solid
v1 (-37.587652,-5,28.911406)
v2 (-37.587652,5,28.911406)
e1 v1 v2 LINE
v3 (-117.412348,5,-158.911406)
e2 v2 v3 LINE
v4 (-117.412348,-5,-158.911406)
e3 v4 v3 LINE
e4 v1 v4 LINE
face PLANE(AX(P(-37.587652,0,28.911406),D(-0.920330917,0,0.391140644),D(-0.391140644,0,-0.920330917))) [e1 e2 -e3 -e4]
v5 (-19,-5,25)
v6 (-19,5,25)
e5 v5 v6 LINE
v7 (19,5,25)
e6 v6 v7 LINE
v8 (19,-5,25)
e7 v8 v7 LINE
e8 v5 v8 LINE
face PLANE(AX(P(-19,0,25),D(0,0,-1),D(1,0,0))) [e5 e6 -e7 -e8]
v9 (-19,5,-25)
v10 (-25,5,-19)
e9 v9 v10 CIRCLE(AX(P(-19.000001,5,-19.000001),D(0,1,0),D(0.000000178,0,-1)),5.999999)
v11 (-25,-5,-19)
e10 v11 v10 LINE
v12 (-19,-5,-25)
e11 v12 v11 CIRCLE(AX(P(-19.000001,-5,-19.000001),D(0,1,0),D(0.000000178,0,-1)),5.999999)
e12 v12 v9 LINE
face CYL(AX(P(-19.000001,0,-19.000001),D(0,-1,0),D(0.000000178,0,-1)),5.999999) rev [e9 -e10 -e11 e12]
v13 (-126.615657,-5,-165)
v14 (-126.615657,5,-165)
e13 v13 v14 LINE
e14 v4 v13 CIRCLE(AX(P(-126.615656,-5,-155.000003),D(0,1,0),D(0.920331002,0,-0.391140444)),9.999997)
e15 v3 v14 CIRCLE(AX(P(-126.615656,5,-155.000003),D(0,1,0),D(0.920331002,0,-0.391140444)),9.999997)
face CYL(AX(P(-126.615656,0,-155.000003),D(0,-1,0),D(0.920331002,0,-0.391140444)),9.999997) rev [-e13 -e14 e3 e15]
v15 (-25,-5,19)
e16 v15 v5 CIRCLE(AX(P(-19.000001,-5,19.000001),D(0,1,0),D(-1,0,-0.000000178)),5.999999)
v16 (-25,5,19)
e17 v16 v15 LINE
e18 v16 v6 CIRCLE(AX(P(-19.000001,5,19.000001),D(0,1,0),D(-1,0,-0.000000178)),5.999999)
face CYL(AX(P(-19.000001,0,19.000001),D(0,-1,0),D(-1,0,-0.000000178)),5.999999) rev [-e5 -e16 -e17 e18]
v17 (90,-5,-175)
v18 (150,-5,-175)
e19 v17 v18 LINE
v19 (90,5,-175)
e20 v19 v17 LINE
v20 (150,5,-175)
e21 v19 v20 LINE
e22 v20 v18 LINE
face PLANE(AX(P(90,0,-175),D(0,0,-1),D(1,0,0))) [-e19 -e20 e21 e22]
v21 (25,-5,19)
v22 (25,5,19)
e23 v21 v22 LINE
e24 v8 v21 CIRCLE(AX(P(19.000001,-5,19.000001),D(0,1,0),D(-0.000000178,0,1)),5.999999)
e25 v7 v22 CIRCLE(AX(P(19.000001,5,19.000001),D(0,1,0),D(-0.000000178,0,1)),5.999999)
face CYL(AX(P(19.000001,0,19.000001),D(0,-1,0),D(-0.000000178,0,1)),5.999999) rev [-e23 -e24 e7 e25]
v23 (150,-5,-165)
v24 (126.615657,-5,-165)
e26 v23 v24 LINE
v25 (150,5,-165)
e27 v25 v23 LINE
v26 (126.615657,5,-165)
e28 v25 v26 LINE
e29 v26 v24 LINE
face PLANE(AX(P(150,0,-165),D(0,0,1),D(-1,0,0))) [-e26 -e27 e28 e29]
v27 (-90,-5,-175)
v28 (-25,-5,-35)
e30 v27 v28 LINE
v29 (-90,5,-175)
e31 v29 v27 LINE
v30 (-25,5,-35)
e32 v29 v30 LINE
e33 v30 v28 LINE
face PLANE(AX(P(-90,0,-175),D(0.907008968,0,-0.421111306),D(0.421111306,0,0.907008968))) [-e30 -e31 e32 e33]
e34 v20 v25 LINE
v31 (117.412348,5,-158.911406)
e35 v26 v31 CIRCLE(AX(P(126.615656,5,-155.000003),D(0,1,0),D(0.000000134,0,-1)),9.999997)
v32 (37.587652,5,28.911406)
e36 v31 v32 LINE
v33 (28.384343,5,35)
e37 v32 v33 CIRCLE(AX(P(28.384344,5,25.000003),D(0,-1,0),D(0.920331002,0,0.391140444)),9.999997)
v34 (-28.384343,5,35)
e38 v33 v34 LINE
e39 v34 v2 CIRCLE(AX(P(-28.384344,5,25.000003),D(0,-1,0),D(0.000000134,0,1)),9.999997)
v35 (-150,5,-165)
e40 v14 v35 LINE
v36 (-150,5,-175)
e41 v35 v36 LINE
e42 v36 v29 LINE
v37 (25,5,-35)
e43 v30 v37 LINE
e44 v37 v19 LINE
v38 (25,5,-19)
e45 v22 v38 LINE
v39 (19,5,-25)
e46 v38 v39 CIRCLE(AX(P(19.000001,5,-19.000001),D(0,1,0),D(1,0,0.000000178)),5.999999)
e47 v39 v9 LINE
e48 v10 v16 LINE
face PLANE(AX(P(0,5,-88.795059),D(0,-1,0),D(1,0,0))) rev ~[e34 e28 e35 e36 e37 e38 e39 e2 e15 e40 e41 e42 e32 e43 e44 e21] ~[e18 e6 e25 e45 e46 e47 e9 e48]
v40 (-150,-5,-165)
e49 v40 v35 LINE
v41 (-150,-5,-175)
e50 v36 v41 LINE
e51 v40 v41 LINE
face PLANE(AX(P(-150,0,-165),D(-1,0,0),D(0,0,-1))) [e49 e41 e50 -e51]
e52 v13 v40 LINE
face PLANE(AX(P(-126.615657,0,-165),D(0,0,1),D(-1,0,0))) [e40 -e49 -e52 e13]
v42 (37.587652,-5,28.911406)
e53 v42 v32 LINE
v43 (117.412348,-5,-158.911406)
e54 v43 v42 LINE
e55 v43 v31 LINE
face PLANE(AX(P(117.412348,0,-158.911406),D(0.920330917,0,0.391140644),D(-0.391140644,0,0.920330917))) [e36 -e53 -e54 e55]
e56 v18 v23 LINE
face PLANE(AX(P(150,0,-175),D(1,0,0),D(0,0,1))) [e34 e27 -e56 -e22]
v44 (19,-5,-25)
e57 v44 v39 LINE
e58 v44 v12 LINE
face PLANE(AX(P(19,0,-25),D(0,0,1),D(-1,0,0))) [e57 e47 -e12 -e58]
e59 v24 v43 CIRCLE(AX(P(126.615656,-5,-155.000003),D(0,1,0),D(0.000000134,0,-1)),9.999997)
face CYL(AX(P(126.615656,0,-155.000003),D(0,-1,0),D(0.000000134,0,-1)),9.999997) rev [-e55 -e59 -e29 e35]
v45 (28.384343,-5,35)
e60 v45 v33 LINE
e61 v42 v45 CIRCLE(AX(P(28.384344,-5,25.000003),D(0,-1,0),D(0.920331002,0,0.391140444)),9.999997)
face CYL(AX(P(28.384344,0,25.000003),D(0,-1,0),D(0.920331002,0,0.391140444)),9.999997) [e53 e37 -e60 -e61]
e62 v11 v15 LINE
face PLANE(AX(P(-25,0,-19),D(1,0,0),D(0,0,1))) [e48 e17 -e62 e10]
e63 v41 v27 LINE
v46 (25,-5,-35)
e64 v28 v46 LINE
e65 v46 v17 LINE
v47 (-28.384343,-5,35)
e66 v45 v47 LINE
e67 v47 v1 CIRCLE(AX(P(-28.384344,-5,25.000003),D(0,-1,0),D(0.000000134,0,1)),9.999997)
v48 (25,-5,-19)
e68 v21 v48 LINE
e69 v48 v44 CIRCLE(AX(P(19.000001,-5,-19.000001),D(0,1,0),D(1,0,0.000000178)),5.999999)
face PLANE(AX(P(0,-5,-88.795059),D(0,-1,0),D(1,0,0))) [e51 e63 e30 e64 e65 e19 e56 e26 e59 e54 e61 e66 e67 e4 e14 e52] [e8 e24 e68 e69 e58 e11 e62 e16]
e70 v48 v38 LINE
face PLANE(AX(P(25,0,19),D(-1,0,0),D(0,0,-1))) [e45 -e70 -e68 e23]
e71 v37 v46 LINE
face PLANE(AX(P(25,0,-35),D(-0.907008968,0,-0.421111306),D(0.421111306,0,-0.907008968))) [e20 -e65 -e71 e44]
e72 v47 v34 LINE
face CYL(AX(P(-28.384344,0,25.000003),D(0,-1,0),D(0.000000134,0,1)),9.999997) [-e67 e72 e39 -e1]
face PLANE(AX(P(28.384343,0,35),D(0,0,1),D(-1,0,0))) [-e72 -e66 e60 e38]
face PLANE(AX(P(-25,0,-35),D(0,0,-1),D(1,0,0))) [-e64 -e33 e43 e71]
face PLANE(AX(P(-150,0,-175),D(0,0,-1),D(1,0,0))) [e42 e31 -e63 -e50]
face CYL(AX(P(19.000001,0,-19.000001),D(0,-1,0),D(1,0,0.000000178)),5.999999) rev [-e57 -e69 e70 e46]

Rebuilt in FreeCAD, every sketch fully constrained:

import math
import FreeCAD as App
import Part
import Sketcher

V = App.Vector

doc = App.newDocument("Part")
body = doc.addObject("PartDesign::Body", "Body")

sketch1 = doc.addObject("Sketcher::SketchObject", "Sketch")
body.addObject(sketch1)
sketch1.AttachmentSupport = (doc.XZ_Plane, [""])
sketch1.MapMode = "FlatFace"
sketch1.addGeometry([
    Part.LineSegment(V(-150, -165, 0), V(-150, -175, 0)),
    Part.LineSegment(V(-150, -175, 0), V(-90, -175, 0)),
    Part.LineSegment(V(-90, -175, 0), V(-25, -35, 0)),
    Part.LineSegment(V(-25, -35, 0), V(25, -35, 0)),
    Part.LineSegment(V(25, -35, 0), V(90, -175, 0)),
    Part.LineSegment(V(90, -175, 0), V(150, -175, 0)),
    Part.LineSegment(V(150, -175, 0), V(150, -165, 0)),
    Part.LineSegment(V(150, -165, 0), V(127, -165, 0)),
    Part.ArcOfCircle(Part.Circle(V(127, -155, 0), V(0, 0, 1), 10), math.radians(-157), math.radians(-90)),
    Part.LineSegment(V(117, -159, 0), V(38, 29, 0)),
    Part.ArcOfCircle(Part.Circle(V(28, 25, 0), V(0, 0, 1), 10), math.radians(23), math.radians(90)),
    Part.LineSegment(V(28, 35, 0), V(-28, 35, 0)),
    Part.ArcOfCircle(Part.Circle(V(-28, 25, 0), V(0, 0, 1), 10), math.radians(90), math.radians(157)),
    Part.LineSegment(V(-38, 29, 0), V(-117, -159, 0)),
    Part.ArcOfCircle(Part.Circle(V(-127, -155, 0), V(0, 0, 1), 10), math.radians(-90), math.radians(-23)),
    Part.LineSegment(V(-127, -165, 0), V(-150, -165, 0)),
    Part.LineSegment(V(-25, -19, 0), V(-25, 19, 0)),
    Part.ArcOfCircle(Part.Circle(V(-19, 19, 0), V(0, 0, 1), 6), math.radians(90), math.radians(180)),
    Part.LineSegment(V(-19, 25, 0), V(19, 25, 0)),
    Part.ArcOfCircle(Part.Circle(V(19, 19, 0), V(0, 0, 1), 6), math.radians(0), math.radians(90)),
    Part.LineSegment(V(25, 19, 0), V(25, -19, 0)),
    Part.ArcOfCircle(Part.Circle(V(19, -19, 0), V(0, 0, 1), 6), math.radians(-90), math.radians(0)),
    Part.LineSegment(V(19, -25, 0), V(-19, -25, 0)),
    Part.ArcOfCircle(Part.Circle(V(-19, -19, 0), V(0, 0, 1), 6), math.radians(180), math.radians(270)),
], False)
sketch1.addConstraint([
    Sketcher.Constraint("Coincident", 0, 2, 1, 1),
    Sketcher.Constraint("Coincident", 1, 2, 2, 1),
    Sketcher.Constraint("Coincident", 2, 2, 3, 1),
    Sketcher.Constraint("Coincident", 3, 2, 4, 1),
    Sketcher.Constraint("Coincident", 4, 2, 5, 1),
    Sketcher.Constraint("Coincident", 5, 2, 6, 1),
    Sketcher.Constraint("Coincident", 6, 2, 7, 1),
    Sketcher.Constraint("Tangent", 7, 2, 8, 2),
    Sketcher.Constraint("Tangent", 8, 1, 9, 1),
    Sketcher.Constraint("Tangent", 9, 2, 10, 1),
    Sketcher.Constraint("Tangent", 10, 2, 11, 1),
    Sketcher.Constraint("Tangent", 11, 2, 12, 1),
    Sketcher.Constraint("Tangent", 12, 2, 13, 1),
    Sketcher.Constraint("Tangent", 13, 2, 14, 2),
    Sketcher.Constraint("Tangent", 14, 1, 15, 1),
    Sketcher.Constraint("Coincident", 15, 2, 0, 1),
    Sketcher.Constraint("Tangent", 16, 2, 17, 2),
    Sketcher.Constraint("Tangent", 17, 1, 18, 1),
    Sketcher.Constraint("Tangent", 18, 2, 19, 2),
    Sketcher.Constraint("Tangent", 19, 1, 20, 1),
    Sketcher.Constraint("Tangent", 20, 2, 21, 2),
    Sketcher.Constraint("Tangent", 21, 1, 22, 1),
    Sketcher.Constraint("Tangent", 22, 2, 23, 2),
    Sketcher.Constraint("Tangent", 23, 1, 16, 1),
    Sketcher.Constraint("Vertical", 0),
    Sketcher.Constraint("Horizontal", 1),
    Sketcher.Constraint("Horizontal", 3),
    Sketcher.Constraint("Horizontal", 5),
    Sketcher.Constraint("Vertical", 6),
    Sketcher.Constraint("Horizontal", 7),
    Sketcher.Constraint("Horizontal", 11),
    Sketcher.Constraint("Horizontal", 15),
    Sketcher.Constraint("Vertical", 16),
    Sketcher.Constraint("Horizontal", 18),
    Sketcher.Constraint("Vertical", 20),
    Sketcher.Constraint("Horizontal", 22),
    Sketcher.Constraint("Equal", 8, 10),
    Sketcher.Constraint("Equal", 10, 12),
    Sketcher.Constraint("Equal", 12, 14),
    Sketcher.Constraint("Equal", 17, 19),
    Sketcher.Constraint("Equal", 19, 21),
    Sketcher.Constraint("Equal", 21, 23),
    Sketcher.Constraint("Symmetric", 17, 3, 21, 3, -1, 1),
    Sketcher.Constraint("Symmetric", 8, 3, 14, 3, -2),
    Sketcher.Constraint("Symmetric", 1, 2, 4, 2, -2),
    Sketcher.Constraint("Horizontal", 9, 2, 12, 2),
    Sketcher.Constraint("Vertical", 2, 2, 16, 2),
    Sketcher.Constraint("Vertical", 3, 2, 19, 1),
    Sketcher.Constraint("Equal", 1, 5),
    Sketcher.Constraint("Equal", 22, 16),
    Sketcher.Constraint("Radius", 17, 5.999999),
    Sketcher.Constraint("DistanceX", 1, 1, 1, 2, 60.0),
    Sketcher.Constraint("DistanceX", 3, 1, 3, 2, 50.0),
    Sketcher.Constraint("DistanceY", 0, 2, 0, 1, 10.0),
    Sketcher.Constraint("DistanceX", 0, 2, -1, 1, 150.0),
    Sketcher.Constraint("DistanceY", 0, 2, -1, 1, 175.0),
    Sketcher.Constraint("DistanceY", 2, 2, -1, 1, 35.0),
    Sketcher.Constraint("DistanceY", -1, 1, 10, 2, 35.0),
    Sketcher.Constraint("DistanceX", 12, 3, 8, 3, 155.0),
    Sketcher.Constraint("DistanceY", 17, 3, 12, 3, 6.000001),
    Sketcher.Constraint("DistanceX", 7, 2, 7, 1, 23.384343),
])
pad1 = doc.addObject("PartDesign::Pad", "Pad")
body.addObject(pad1)
pad1.Profile = sketch1
pad1.Length = 10
pad1.Midplane = True

doc.recompute()
